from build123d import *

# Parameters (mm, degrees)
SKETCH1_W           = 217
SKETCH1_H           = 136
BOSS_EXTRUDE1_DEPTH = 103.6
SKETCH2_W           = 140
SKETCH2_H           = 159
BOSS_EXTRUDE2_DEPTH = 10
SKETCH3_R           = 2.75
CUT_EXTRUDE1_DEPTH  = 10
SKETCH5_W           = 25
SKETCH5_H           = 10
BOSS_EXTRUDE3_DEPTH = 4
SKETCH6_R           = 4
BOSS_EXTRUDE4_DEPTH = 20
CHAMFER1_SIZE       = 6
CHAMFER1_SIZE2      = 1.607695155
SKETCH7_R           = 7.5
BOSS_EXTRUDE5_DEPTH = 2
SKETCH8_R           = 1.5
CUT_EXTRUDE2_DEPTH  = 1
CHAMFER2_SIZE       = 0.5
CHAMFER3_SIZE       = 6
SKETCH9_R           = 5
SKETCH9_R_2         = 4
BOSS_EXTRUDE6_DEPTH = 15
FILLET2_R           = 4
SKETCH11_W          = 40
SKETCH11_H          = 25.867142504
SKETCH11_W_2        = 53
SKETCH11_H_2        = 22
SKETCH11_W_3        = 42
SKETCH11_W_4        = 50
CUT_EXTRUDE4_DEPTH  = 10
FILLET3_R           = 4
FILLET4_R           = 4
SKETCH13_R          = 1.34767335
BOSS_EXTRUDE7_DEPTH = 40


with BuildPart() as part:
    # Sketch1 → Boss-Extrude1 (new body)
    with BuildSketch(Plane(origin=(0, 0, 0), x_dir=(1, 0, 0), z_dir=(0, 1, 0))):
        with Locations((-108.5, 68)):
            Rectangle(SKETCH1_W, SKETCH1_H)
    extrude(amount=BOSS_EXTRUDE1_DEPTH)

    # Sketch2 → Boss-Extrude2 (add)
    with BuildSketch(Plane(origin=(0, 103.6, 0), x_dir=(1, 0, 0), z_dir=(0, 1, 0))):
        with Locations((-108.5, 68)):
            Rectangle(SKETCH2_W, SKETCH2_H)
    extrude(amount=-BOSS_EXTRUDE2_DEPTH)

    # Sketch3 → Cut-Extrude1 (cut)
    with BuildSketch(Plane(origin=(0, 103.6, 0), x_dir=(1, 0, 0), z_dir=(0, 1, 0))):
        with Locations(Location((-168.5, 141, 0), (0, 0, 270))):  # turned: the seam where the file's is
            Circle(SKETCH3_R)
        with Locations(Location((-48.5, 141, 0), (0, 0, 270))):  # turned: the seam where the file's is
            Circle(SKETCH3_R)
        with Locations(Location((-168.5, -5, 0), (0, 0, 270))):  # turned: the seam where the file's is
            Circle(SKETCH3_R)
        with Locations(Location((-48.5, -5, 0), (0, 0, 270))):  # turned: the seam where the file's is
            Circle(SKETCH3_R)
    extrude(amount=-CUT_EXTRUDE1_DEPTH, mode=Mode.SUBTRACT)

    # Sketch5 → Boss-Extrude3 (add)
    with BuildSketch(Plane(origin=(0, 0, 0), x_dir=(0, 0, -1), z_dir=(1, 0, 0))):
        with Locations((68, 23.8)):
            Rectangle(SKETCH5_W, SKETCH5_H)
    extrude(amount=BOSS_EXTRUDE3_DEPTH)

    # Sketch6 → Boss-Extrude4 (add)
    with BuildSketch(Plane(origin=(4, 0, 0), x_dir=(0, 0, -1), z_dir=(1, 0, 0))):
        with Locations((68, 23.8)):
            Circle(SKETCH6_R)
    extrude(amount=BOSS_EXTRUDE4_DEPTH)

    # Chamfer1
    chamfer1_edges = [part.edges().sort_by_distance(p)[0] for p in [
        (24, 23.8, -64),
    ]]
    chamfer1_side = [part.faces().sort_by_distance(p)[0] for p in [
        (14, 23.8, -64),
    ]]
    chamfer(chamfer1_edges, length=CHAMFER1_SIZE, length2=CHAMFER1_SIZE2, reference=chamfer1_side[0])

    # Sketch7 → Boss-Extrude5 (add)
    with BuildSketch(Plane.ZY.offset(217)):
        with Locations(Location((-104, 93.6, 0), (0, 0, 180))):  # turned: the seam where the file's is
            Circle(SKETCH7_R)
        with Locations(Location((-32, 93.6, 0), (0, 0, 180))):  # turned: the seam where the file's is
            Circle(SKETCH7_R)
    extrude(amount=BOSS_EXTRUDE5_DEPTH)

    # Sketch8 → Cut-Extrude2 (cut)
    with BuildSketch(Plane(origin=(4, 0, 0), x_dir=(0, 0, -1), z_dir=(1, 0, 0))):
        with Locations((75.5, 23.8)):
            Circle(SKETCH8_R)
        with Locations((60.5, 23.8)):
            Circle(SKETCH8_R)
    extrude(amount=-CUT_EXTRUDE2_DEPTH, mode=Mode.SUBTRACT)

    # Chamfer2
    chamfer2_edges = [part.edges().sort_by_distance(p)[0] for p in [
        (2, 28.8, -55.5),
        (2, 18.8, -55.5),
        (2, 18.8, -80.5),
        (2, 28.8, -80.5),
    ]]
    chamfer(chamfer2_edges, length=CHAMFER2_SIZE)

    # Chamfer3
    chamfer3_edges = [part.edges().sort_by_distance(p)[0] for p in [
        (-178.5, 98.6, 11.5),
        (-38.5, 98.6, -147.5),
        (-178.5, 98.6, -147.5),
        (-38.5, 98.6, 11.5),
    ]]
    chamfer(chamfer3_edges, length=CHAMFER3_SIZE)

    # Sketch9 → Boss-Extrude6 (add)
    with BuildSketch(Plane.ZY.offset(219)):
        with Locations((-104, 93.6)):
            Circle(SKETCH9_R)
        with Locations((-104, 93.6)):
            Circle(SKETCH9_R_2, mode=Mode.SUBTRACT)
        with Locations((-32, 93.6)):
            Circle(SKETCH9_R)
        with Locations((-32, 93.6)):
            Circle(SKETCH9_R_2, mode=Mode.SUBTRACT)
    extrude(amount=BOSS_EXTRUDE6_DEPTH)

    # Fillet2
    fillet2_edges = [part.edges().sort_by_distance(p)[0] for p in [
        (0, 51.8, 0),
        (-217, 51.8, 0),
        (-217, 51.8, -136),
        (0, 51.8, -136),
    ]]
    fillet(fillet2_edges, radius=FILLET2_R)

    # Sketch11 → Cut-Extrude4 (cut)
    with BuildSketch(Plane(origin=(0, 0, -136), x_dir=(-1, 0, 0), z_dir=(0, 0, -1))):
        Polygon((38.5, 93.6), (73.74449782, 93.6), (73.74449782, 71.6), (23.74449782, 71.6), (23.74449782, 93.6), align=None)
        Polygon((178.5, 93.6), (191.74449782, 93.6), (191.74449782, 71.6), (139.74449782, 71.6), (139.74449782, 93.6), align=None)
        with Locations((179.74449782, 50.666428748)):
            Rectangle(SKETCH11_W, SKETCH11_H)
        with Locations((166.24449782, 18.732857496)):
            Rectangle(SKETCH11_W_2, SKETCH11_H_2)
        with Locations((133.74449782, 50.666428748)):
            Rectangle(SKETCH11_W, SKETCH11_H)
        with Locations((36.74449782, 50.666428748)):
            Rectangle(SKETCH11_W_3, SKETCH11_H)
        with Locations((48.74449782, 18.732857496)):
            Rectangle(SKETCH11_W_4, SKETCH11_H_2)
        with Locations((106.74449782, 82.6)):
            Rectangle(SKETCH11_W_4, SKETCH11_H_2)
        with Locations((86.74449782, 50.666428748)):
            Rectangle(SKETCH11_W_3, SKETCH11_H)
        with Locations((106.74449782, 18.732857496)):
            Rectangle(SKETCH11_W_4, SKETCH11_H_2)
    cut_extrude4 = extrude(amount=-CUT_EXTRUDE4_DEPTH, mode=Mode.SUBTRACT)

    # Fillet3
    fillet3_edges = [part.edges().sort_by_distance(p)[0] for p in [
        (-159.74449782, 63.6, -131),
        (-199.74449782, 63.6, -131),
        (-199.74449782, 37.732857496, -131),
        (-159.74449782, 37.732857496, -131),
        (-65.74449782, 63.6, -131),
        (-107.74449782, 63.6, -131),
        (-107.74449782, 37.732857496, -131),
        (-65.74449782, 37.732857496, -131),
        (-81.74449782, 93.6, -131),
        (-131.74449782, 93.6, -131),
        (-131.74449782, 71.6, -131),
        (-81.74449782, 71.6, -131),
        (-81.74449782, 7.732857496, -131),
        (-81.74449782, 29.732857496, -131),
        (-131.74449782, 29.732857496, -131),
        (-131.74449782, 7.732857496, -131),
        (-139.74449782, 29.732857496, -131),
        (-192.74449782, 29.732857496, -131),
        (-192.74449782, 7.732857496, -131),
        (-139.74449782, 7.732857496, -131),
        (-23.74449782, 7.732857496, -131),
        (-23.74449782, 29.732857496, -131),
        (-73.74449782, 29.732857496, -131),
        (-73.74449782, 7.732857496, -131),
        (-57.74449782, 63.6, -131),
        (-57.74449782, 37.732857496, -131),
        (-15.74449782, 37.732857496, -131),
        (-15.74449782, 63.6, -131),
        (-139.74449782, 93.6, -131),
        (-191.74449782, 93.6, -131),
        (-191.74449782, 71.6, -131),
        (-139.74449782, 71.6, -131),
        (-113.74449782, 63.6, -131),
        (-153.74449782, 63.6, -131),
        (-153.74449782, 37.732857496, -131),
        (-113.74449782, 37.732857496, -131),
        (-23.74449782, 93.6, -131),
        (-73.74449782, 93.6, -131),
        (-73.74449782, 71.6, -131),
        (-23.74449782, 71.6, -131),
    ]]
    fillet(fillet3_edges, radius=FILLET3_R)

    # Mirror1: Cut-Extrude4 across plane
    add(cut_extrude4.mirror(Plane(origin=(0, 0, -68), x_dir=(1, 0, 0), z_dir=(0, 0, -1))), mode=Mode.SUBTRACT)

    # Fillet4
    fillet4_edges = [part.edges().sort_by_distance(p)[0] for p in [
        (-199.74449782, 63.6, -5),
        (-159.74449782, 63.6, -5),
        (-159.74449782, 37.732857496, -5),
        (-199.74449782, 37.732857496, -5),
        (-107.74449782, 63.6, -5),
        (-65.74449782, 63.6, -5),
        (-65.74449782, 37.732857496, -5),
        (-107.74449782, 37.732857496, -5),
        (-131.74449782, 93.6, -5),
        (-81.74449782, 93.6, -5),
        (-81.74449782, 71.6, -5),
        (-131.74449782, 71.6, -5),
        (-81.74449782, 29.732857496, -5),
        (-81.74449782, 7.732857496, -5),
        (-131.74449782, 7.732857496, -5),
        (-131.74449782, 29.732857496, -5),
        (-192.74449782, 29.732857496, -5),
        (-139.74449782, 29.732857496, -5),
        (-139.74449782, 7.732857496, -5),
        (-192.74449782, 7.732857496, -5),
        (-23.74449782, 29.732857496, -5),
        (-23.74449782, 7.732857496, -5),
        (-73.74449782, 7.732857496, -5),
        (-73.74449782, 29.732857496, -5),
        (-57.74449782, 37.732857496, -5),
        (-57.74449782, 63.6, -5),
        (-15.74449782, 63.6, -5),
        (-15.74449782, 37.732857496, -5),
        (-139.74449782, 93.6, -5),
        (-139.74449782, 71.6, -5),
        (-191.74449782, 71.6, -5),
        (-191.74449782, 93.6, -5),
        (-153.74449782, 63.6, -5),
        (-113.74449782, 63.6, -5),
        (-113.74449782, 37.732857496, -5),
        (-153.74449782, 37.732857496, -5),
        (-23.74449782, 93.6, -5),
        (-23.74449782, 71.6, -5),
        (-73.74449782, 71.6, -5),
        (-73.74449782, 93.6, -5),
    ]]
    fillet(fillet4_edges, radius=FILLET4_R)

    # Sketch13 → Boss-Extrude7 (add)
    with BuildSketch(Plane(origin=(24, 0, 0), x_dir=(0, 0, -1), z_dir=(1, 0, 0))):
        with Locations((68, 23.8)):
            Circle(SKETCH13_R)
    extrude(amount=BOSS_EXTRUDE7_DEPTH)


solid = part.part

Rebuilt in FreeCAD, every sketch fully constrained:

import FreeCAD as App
import Part
import Sketcher
from FreeCAD import Vector
Q = App.Units.Quantity


def edges_at(feature, points):
    """Names of the edges that pass closest to the given points."""
    edges = feature.Shape.Edges
    near = lambda p: min(range(len(edges)), key=lambda i: edges[i].distToShape(Part.Vertex(*p))[0])
    return sorted({f"Edge{near(p) + 1}" for p in points})


def add_polygon(sketch, points):
    """Adds a closed chain of lines whose ends are joined by coincident constraints."""
    first, n = sketch.GeometryCount, len(points)
    for a, b in zip(points, points[1:] + points[:1]):
        sketch.addGeometry(Part.LineSegment(App.Vector(*a, 0), App.Vector(*b, 0)), False)
    for i in range(n):
        sketch.addConstraint(Sketcher.Constraint("Coincident", first + i, 2, first + (i + 1) % n, 1))

doc = App.newDocument("Part")
params = doc.addObject("Spreadsheet::Sheet", "Params")
for row, (alias, value) in enumerate([
    ("sketch1_width", "217 mm"),
    ("sketch1_height", "136 mm"),
    ("pad1_length", "103.6 mm"),
    ("sketch2_width", "140 mm"),
    ("sketch2_height", "159 mm"),
    ("pad2_length", "10 mm"),
    ("sketch3_diameter", "5.5 mm"),
    ("pocket1_length", "10 mm"),
    ("sketch4_width", "10 mm"),
    ("sketch4_height", "25 mm"),
    ("pad3_length", "4 mm"),
    ("sketch5_diameter", "8 mm"),
    ("pad4_length", "20 mm"),
    ("chamfer_size", "6 mm"),
    ("chamfer_size2", "1.607695 mm"),
    ("sketch6_diameter", "15 mm"),
    ("pad5_length", "2 mm"),
    ("sketch7_diameter", "3 mm"),
    ("pocket2_length", "1 mm"),
    ("chamfer2_size", "0.5 mm"),
    ("chamfer3_size", "6 mm"),
    ("sketch8_diameter", "10 mm"),
    ("sketch8_diameter2", "8 mm"),
    ("pad6_length", "15 mm"),
    ("fillet_radius", "4 mm"),
    ("sketch9_width", "50 mm"),
    ("sketch9_width2", "52 mm"),
    ("sketch9_width3", "40 mm"),
    ("sketch9_width4", "53 mm"),
    ("sketch9_width5", "42 mm"),
    ("pocket3_length", "10 mm"),
    ("fillet2_radius", "4 mm"),
    ("fillet3_radius", "4 mm"),
    ("pad7_length", "40 mm"),
], start=1):
    params.set(f"A{row}", alias)
    params.set(f"B{row}", "=" + value)
    params.setAlias(f"B{row}", alias)

body = doc.addObject("PartDesign::Body", "Body")

# Sketch on XZ plane
sketch1 = body.newObject("Sketcher::SketchObject", "Sketch")
sketch1.AttachmentSupport = (doc.getObject("XZ_Plane"), [""])
sketch1.MapMode = "FlatFace"
add_polygon(sketch1, [(-217, -136), (-217, 0), (0, 0), (0, -136)])  # lines 0-3
sketch1.addConstraint([
    Sketcher.Constraint("Vertical", 0),
    Sketcher.Constraint("Horizontal", 1),
    Sketcher.Constraint("Vertical", 2),
    Sketcher.Constraint("Horizontal", 3),
    Sketcher.Constraint("Coincident", 1, 2, -1, 1),
    Sketcher.Constraint("DistanceX", 1, 1, 1, 2, Q("217 mm")),
    Sketcher.Constraint("DistanceY", 0, 1, 0, 2, Q("136 mm")),
])
sketch1.setExpression("Constraints[9]", "Params.sketch1_width")
sketch1.setExpression("Constraints[10]", "Params.sketch1_height")
pad1 = body.newObject("PartDesign::Pad", "Pad")
pad1.Profile = sketch1
pad1.setExpression("Length", "Params.pad1_length")
pad1.Reversed = True

# Sketch on XZ plane
sketch2 = body.newObject("Sketcher::SketchObject", "Sketch001")
sketch2.AttachmentSupport = (doc.getObject("XZ_Plane"), [""])
sketch2.MapMode = "FlatFace"
sketch2.AttachmentOffset = App.Placement(Vector(0, 0, -103.6), App.Rotation())
add_polygon(sketch2, [(-178, -148), (-178, 12), (-38, 12), (-38, -148)])  # lines 0-3
sketch2.addConstraint([
    Sketcher.Constraint("Vertical", 0),
    Sketcher.Constraint("Horizontal", 1),
    Sketcher.Constraint("Vertical", 2),
    Sketcher.Constraint("Horizontal", 3),
    Sketcher.Constraint("DistanceX", 1, 1, 1, 2, Q("140 mm")),
    Sketcher.Constraint("DistanceY", 0, 1, 0, 2, Q("159 mm")),
    Sketcher.Constraint("DistanceX", 0, 2, -1, 1, Q("178.5 mm")),
    Sketcher.Constraint("DistanceY", -1, 1, 0, 2, Q("11.5 mm")),
])
sketch2.setExpression("Constraints[8]", "Params.sketch2_width")
sketch2.setExpression("Constraints[9]", "Params.sketch2_height")
pad2 = body.newObject("PartDesign::Pad", "Pad001")
pad2.Profile = sketch2
pad2.setExpression("Length", "Params.pad2_length")

# Sketch on XZ plane
sketch3 = body.newObject("Sketcher::SketchObject", "Sketch002")
sketch3.AttachmentSupport = (doc.getObject("XZ_Plane"), [""])
sketch3.MapMode = "FlatFace"
sketch3.AttachmentOffset = App.Placement(Vector(0, 0, -103.6), App.Rotation())
sketch3.addGeometry([
    Part.Circle(Vector(-168.5, -141, 0), Vector(0, 0, 1), 2.8),
    Part.Circle(Vector(-48.5, -141, 0), Vector(0, 0, 1), 2.8),
    Part.Circle(Vector(-168.5, 5, 0), Vector(0, 0, 1), 2.8),
    Part.Circle(Vector(-48.5, 5, 0), Vector(0, 0, 1), 2.8),
], False)
sketch3.addConstraint([
    Sketcher.Constraint("Equal", 0, 1),
    Sketcher.Constraint("Equal", 1, 2),
    Sketcher.Constraint("Equal", 2, 3),
    Sketcher.Constraint("Horizontal", 0, 3, 1, 3),
    Sketcher.Constraint("Horizontal", 2, 3, 3, 3),
    Sketcher.Constraint("Vertical", 0, 3, 2, 3),
    Sketcher.Constraint("Vertical", 1, 3, 3, 3),
    Sketcher.Constraint("Diameter", 0, Q("5.5 mm")),
    Sketcher.Constraint("DistanceY", 0, 3, -1, 1, Q("141 mm")),
    Sketcher.Constraint("DistanceY", -1, 1, 2, 3, Q("5 mm")),
    Sketcher.Constraint("DistanceX", 0, 3, 1, 3, Q("120 mm")),
    Sketcher.Constraint("DistanceX", 0, 3, -1, 1, Q("168.5 mm")),
])
sketch3.setExpression("Constraints[7]", "Params.sketch3_diameter")
pocket1 = body.newObject("PartDesign::Pocket", "Pocket")
pocket1.Profile = sketch3
pocket1.setExpression("Length", "Params.pocket1_length")
pocket1.Reversed = True

# Sketch on YZ plane
sketch4 = body.newObject("Sketcher::SketchObject", "Sketch003")
sketch4.AttachmentSupport = (doc.getObject("YZ_Plane"), [""])
sketch4.MapMode = "FlatFace"
add_polygon(sketch4, [(29, -56), (19, -56), (19, -80), (29, -80)])  # lines 0-3
sketch4.addConstraint([
    Sketcher.Constraint("Horizontal", 0),
    Sketcher.Constraint("Vertical", 1),
    Sketcher.Constraint("Horizontal", 2),
    Sketcher.Constraint("Vertical", 3),
    Sketcher.Constraint("DistanceX", 0, 2, 0, 1, Q("10 mm")),
    Sketcher.Constraint("DistanceY", 1, 2, 1, 1, Q("25 mm")),
    Sketcher.Constraint("DistanceX", -1, 1, 0, 2, Q("18.8 mm")),
    Sketcher.Constraint("DistanceY", 0, 2, -1, 1, Q("55.5 mm")),
])
sketch4.setExpression("Constraints[8]", "Params.sketch4_width")
sketch4.setExpression("Constraints[9]", "Params.sketch4_height")
pad3 = body.newObject("PartDesign::Pad", "Pad002")
pad3.Profile = sketch4
pad3.setExpression("Length", "Params.pad3_length")

# Sketch on YZ plane
sketch5 = body.newObject("Sketcher::SketchObject", "Sketch004")
sketch5.AttachmentSupport = (doc.getObject("YZ_Plane"), [""])
sketch5.MapMode = "FlatFace"
sketch5.AttachmentOffset = App.Placement(Vector(0, 0, 4), App.Rotation())
sketch5.addGeometry(Part.Circle(Vector(23.8, -68, 0), Vector(0, 0, 1), 4), False)
sketch5.addConstraint([
    Sketcher.Constraint("Diameter", 0, Q("8 mm")),
    Sketcher.Constraint("DistanceY", 0, 3, -1, 1, Q("68 mm")),
    Sketcher.Constraint("DistanceX", -1, 1, 0, 3, Q("23.8 mm")),
])
sketch5.setExpression("Constraints[0]", "Params.sketch5_diameter")
pad4 = body.newObject("PartDesign::Pad", "Pad003")
pad4.Profile = sketch5
pad4.setExpression("Length", "Params.pad4_length")
doc.recompute()

chamfer = body.newObject("PartDesign::Chamfer", "Chamfer")
chamfer.Base = (pad4, edges_at(pad4, [(24, 23.8, -64)]))
chamfer.ChamferType = "Two distances"
chamfer.setExpression("Size", "Params.chamfer_size")
chamfer.setExpression("Size2", "Params.chamfer_size2")

# Sketch on YZ plane
sketch6 = body.newObject("Sketcher::SketchObject", "Sketch005")
sketch6.AttachmentSupport = (doc.getObject("YZ_Plane"), [""])
sketch6.MapMode = "FlatFace"
sketch6.AttachmentOffset = App.Placement(Vector(0, 0, -217), App.Rotation())
sketch6.addGeometry([
    Part.Circle(Vector(94, -104, 0), Vector(0, 0, 1), 8),
    Part.Circle(Vector(94, -32, 0), Vector(0, 0, 1), 8),
], False)
sketch6.addConstraint([
    Sketcher.Constraint("Equal", 0, 1),
    Sketcher.Constraint("Vertical", 0, 3, 1, 3),
    Sketcher.Constraint("Diameter", 0, Q("15 mm")),
    Sketcher.Constraint("DistanceY", 0, 3, -1, 1, Q("104 mm")),
    Sketcher.Constraint("DistanceY", 1, 3, -1, 1, Q("32 mm")),
    Sketcher.Constraint("DistanceX", -1, 1, 0, 3, Q("93.6 mm")),
])
sketch6.setExpression("Constraints[2]", "Params.sketch6_diameter")
pad5 = body.newObject("PartDesign::Pad", "Pad004")
pad5.Profile = sketch6
pad5.setExpression("Length", "Params.pad5_length")
pad5.Reversed = True

# Sketch on YZ plane
sketch7 = body.newObject("Sketcher::SketchObject", "Sketch006")
sketch7.AttachmentSupport = (doc.getObject("YZ_Plane"), [""])
sketch7.MapMode = "FlatFace"
sketch7.AttachmentOffset = App.Placement(Vector(0, 0, 4), App.Rotation())
sketch7.addGeometry([
    Part.Circle(Vector(23.8, -75.5, 0), Vector(0, 0, 1), 1.5),
    Part.Circle(Vector(23.8, -60.5, 0), Vector(0, 0, 1), 1.5),
], False)
sketch7.addConstraint([
    Sketcher.Constraint("Equal", 0, 1),
    Sketcher.Constraint("Vertical", 0, 3, 1, 3),
    Sketcher.Constraint("Diameter", 0, Q("3 mm")),
    Sketcher.Constraint("DistanceY", 0, 3, 1, 3, Q("15 mm")),
    Sketcher.Constraint("DistanceX", -1, 1, 0, 3, Q("23.8 mm")),
    Sketcher.Constraint("DistanceY", 0, 3, -1, 1, Q("75.5 mm")),
])
sketch7.setExpression("Constraints[2]", "Params.sketch7_diameter")
pocket2 = body.newObject("PartDesign::Pocket", "Pocket001")
pocket2.Profile = sketch7
pocket2.setExpression("Length", "Params.pocket2_length")
doc.recompute()

chamfer2 = body.newObject("PartDesign::Chamfer", "Chamfer001")
chamfer2.Base = (pocket2, edges_at(pocket2, [
    (2, 28.8, -55.5),
    (2, 18.8, -55.5),
    (2, 18.8, -80.5),
    (2, 28.8, -80.5),
]))
chamfer2.setExpression("Size", "Params.chamfer2_size")
doc.recompute()

chamfer3 = body.newObject("PartDesign::Chamfer", "Chamfer002")
chamfer3.Base = (chamfer2, edges_at(chamfer2, [
    (-178.5, 98.6, 11.5),
    (-38.5, 98.6, -147.5),
    (-178.5, 98.6, -147.5),
    (-38.5, 98.6, 11.5),
]))
chamfer3.setExpression("Size", "Params.chamfer3_size")

# Sketch on YZ plane
sketch8 = body.newObject("Sketcher::SketchObject", "Sketch007")
sketch8.AttachmentSupport = (doc.getObject("YZ_Plane"), [""])
sketch8.MapMode = "FlatFace"
sketch8.AttachmentOffset = App.Placement(Vector(0, 0, -219), App.Rotation())
sketch8.addGeometry([
    Part.Circle(Vector(93.6, -104, 0), Vector(0, 0, 1), 5),
    Part.Circle(Vector(93.6, -104, 0), Vector(0, 0, 1), 4),
    Part.Circle(Vector(93.6, -32, 0), Vector(0, 0, 1), 5),
    Part.Circle(Vector(93.6, -32, 0), Vector(0, 0, 1), 4),
], False)
sketch8.addConstraint([
    Sketcher.Constraint("Coincident", 1, 3, 0, 3),
    Sketcher.Constraint("Coincident", 3, 3, 2, 3),
    Sketcher.Constraint("Equal", 0, 2),
    Sketcher.Constraint("Equal", 1, 3),
    Sketcher.Constraint("Vertical", 1, 3, 2, 3),
    Sketcher.Constraint("Diameter", 0, Q("10 mm")),
    Sketcher.Constraint("Diameter", 1, Q("8 mm")),
    Sketcher.Constraint("DistanceY", 0, 3, -1, 1, Q("104 mm")),
    Sketcher.Constraint("DistanceY", 2, 3, -1, 1, Q("32 mm")),
    Sketcher.Constraint("DistanceX", -1, 1, 0, 3, Q("93.6 mm")),
])
sketch8.setExpression("Constraints[5]", "Params.sketch8_diameter")
sketch8.setExpression("Constraints[6]", "Params.sketch8_diameter2")
pad6 = body.newObject("PartDesign::Pad", "Pad005")
pad6.Profile = sketch8
pad6.setExpression("Length", "Params.pad6_length")
pad6.Reversed = True
doc.recompute()

fillet = body.newObject("PartDesign::Fillet", "Fillet")
fillet.Base = (pad6, edges_at(pad6, [
    (0, 51.8, 0),
    (-217, 51.8, 0),
    (-217, 51.8, -136),
    (0, 51.8, -136),
]))
fillet.setExpression("Radius", "Params.fillet_radius")

# Sketch on XY plane
sketch9 = body.newObject("Sketcher::SketchObject", "Sketch008")
sketch9.AttachmentSupport = (doc.getObject("XY_Plane"), [""])
sketch9.MapMode = "FlatFace"
sketch9.AttachmentOffset = App.Placement(Vector(0, 0, -136), App.Rotation())
add_polygon(sketch9, [(-74, 94), (-24, 94), (-24, 72), (-74, 72)])  # lines 0-3
add_polygon(sketch9, [(-192, 94), (-140, 94), (-140, 72), (-192, 72)])  # lines 4-7
add_polygon(sketch9, [(-160, 64), (-160, 38), (-200, 38), (-200, 64)])  # lines 8-11
add_polygon(sketch9, [(-140, 30), (-140, 8), (-193, 8), (-193, 30)])  # lines 12-15
add_polygon(sketch9, [(-114, 64), (-114, 38), (-154, 38), (-154, 64)])  # lines 16-19
add_polygon(sketch9, [(-16, 64), (-16, 38), (-58, 38), (-58, 64)])  # lines 20-23
add_polygon(sketch9, [(-24, 30), (-24, 8), (-74, 8), (-74, 30)])  # lines 24-27
add_polygon(sketch9, [(-82, 94), (-82, 72), (-132, 72), (-132, 94)])  # lines 28-31
add_polygon(sketch9, [(-66, 64), (-66, 38), (-108, 38), (-108, 64)])  # lines 32-35
add_polygon(sketch9, [(-82, 30), (-82, 8), (-132, 8), (-132, 30)])  # lines 36-39
sketch9.addConstraint([
    Sketcher.Constraint("Horizontal", 0),
    Sketcher.Constraint("Vertical", 1),
    Sketcher.Constraint("Horizontal", 2),
    Sketcher.Constraint("Vertical", 3),
    Sketcher.Constraint("Horizontal", 4),
    Sketcher.Constraint("Vertical", 5),
    Sketcher.Constraint("Horizontal", 6),
    Sketcher.Constraint("Vertical", 7),
    Sketcher.Constraint("Vertical", 8),
    Sketcher.Constraint("Horizontal", 9),
    Sketcher.Constraint("Vertical", 10),
    Sketcher.Constraint("Horizontal", 11),
    Sketcher.Constraint("Vertical", 12),
    Sketcher.Constraint("Horizontal", 13),
    Sketcher.Constraint("Vertical", 14),
    Sketcher.Constraint("Horizontal", 15),
    Sketcher.Constraint("Vertical", 16),
    Sketcher.Constraint("Horizontal", 17),
    Sketcher.Constraint("Vertical", 18),
    Sketcher.Constraint("Horizontal", 19),
    Sketcher.Constraint("Vertical", 20),
    Sketcher.Constraint("Horizontal", 21),
    Sketcher.Constraint("Vertical", 22),
    Sketcher.Constraint("Horizontal", 23),
    Sketcher.Constraint("Vertical", 24),
    Sketcher.Constraint("Horizontal", 25),
    Sketcher.Constraint("Vertical", 26),
    Sketcher.Constraint("Horizontal", 27),
    Sketcher.Constraint("Vertical", 28),
    Sketcher.Constraint("Horizontal", 29),
    Sketcher.Constraint("Vertical", 30),
    Sketcher.Constraint("Horizontal", 31),
    Sketcher.Constraint("Vertical", 32),
    Sketcher.Constraint("Horizontal", 33),
    Sketcher.Constraint("Vertical", 34),
    Sketcher.Constraint("Horizontal", 35),
    Sketcher.Constraint("Vertical", 36),
    Sketcher.Constraint("Horizontal", 37),
    Sketcher.Constraint("Vertical", 38),
    Sketcher.Constraint("Horizontal", 39),
    Sketcher.Constraint("Horizontal", 3, 2, 4, 2),
    Sketcher.Constraint("Horizontal", 2, 2, 5, 2),
    Sketcher.Constraint("Horizontal", 9, 2, 16, 2),
    Sketcher.Constraint("Horizontal", 11, 2, 18, 2),
    Sketcher.Constraint("Horizontal", 17, 2, 20, 2),
    Sketcher.Constraint("Horizontal", 19, 2, 22, 2),
    Sketcher.Constraint("Horizontal", 13, 2, 24, 2),
    Sketcher.Constraint("Horizontal", 15, 2, 26, 2),
    Sketcher.Constraint("Horizontal", 6, 2, 28, 2),
    Sketcher.Constraint("Horizontal", 7, 2, 30, 2),
    Sketcher.Constraint("Horizontal", 21, 2, 32, 2),
    Sketcher.Constraint("Horizontal", 23, 2, 34, 2),
    Sketcher.Constraint("Horizontal", 25, 2, 36, 2),
    Sketcher.Constraint("Horizontal", 27, 2, 38, 2),
    Sketcher.Constraint("Vertical", 5, 2, 12, 2),
    Sketcher.Constraint("Vertical", 1, 2, 24, 2),
    Sketcher.Constraint("Vertical", 3, 2, 25, 2),
    Sketcher.Constraint("Vertical", 31, 2, 36, 2),
    Sketcher.Constraint("Vertical", 30, 2, 37, 2),
    Sketcher.Constraint("Equal", 11, 17),
    Sketcher.Constraint("Equal", 27, 29),
    Sketcher.Constraint("Equal", 23, 33),
    Sketcher.Constraint("Equal", 7, 12),
    Sketcher.Constraint("DistanceX", 0, 1, 0, 2, Q("50 mm")),
    Sketcher.Constraint("DistanceX", 4, 1, 4, 2, Q("52 mm")),
    Sketcher.Constraint("DistanceX", 9, 2, 9, 1, Q("40 mm")),
    Sketcher.Constraint("DistanceX", 13, 2, 13, 1, Q("53 mm")),
    Sketcher.Constraint("DistanceX", 21, 2, 21, 1, Q("42 mm")),
    Sketcher.Constraint("DistanceY", 1, 2, 1, 1, Q("22 mm")),
    Sketcher.Constraint("DistanceX", 4, 2, 3, 2, Q("66 mm")),
    Sketcher.Constraint("DistanceX", 8, 2, 5, 2, Q("20 mm")),
    Sketcher.Constraint("DistanceY", 10, 2, 6, 2, Q("8 mm")),
    Sketcher.Constraint("DistanceY", 12, 2, 8, 2, Q("30 mm")),
    Sketcher.Constraint("DistanceX", 15, 2, 16, 2, Q("26 mm")),
    Sketcher.Constraint("DistanceX", 1, 2, 20, 2, Q("8 mm")),
    Sketcher.Constraint("DistanceX", 28, 2, 2, 2, Q("8 mm")),
    Sketcher.Constraint("DistanceX", 32, 2, 21, 2, Q("8 mm")),
    Sketcher.Constraint("DistanceY", -1, 1, 0, 2, Q("93.6 mm")),
    Sketcher.Constraint("DistanceY", 8, 2, 8, 1, Q("25.867143 mm")),
    Sketcher.Constraint("DistanceX", 0, 2, -1, 1, Q("23.744498 mm")),
])
sketch9.setExpression("Constraints[103]", "Params.sketch9_width")
sketch9.setExpression("Constraints[104]", "Params.sketch9_width2")
sketch9.setExpression("Constraints[105]", "Params.sketch9_width3")
sketch9.setExpression("Constraints[106]", "Params.sketch9_width4")
sketch9.setExpression("Constraints[107]", "Params.sketch9_width5")
pocket3 = body.newObject("PartDesign::Pocket", "Pocket002")
pocket3.Profile = sketch9
pocket3.setExpression("Length", "Params.pocket3_length")
pocket3.Reversed = True
doc.recompute()

fillet2 = body.newObject("PartDesign::Fillet", "Fillet001")
fillet2.Base = (pocket3, edges_at(pocket3, [
    (-159.744, 63.6, -131),
    (-199.744, 63.6, -131),
    (-199.744, 37.733, -131),
    (-159.744, 37.733, -131),
    (-65.744, 63.6, -131),
    (-107.744, 63.6, -131),
    (-107.744, 37.733, -131),
    (-65.744, 37.733, -131),
    (-81.744, 93.6, -131),
    (-131.744, 93.6, -131),
    (-131.744, 71.6, -131),
    (-81.744, 71.6, -131),
    (-81.744, 7.733, -131),
    (-81.744, 29.733, -131),
    (-131.744, 29.733, -131),
    (-131.744, 7.733, -131),
    (-139.744, 29.733, -131),
    (-192.744, 29.733, -131),
    (-192.744, 7.733, -131),
    (-139.744, 7.733, -131),
    (-23.744, 7.733, -131),
    (-23.744, 29.733, -131),
    (-73.744, 29.733, -131),
    (-73.744, 7.733, -131),
    (-57.744, 63.6, -131),
    (-57.744, 37.733, -131),
    (-15.744, 37.733, -131),
    (-15.744, 63.6, -131),
    (-139.744, 93.6, -131),
    (-191.744, 93.6, -131),
    (-191.744, 71.6, -131),
    (-139.744, 71.6, -131),
    (-113.744, 63.6, -131),
    (-153.744, 63.6, -131),
    (-153.744, 37.733, -131),
    (-113.744, 37.733, -131),
    (-23.744, 93.6, -131),
    (-73.744, 93.6, -131),
    (-73.744, 71.6, -131),
    (-23.744, 71.6, -131),
]))
fillet2.setExpression("Radius", "Params.fillet2_radius")
doc.recompute()

datumplane = body.newObject("PartDesign::Plane", "DatumPlane")
datumplane.AttachmentSupport = (doc.getObject("XY_Plane"), [""])
datumplane.MapMode = "FlatFace"
datumplane.AttachmentOffset = App.Placement(Vector(0, 0, -68), App.Rotation())
mirrored = body.newObject("PartDesign::Mirrored", "Mirrored")
mirrored.Originals = [pocket3]
mirrored.MirrorPlane = (datumplane, [""])
body.Tip = mirrored
doc.recompute()

fillet3 = body.newObject("PartDesign::Fillet", "Fillet002")
fillet3.Base = (mirrored, edges_at(mirrored, [
    (-199.744, 63.6, -5),
    (-159.744, 63.6, -5),
    (-159.744, 37.733, -5),
    (-199.744, 37.733, -5),
    (-107.744, 63.6, -5),
    (-65.744, 63.6, -5),
    (-65.744, 37.733, -5),
    (-107.744, 37.733, -5),
    (-131.744, 93.6, -5),
    (-81.744, 93.6, -5),
    (-81.744, 71.6, -5),
    (-131.744, 71.6, -5),
    (-81.744, 29.733, -5),
    (-81.744, 7.733, -5),
    (-131.744, 7.733, -5),
    (-131.744, 29.733, -5),
    (-192.744, 29.733, -5),
    (-139.744, 29.733, -5),
    (-139.744, 7.733, -5),
    (-192.744, 7.733, -5),
    (-23.744, 29.733, -5),
    (-23.744, 7.733, -5),
    (-73.744, 7.733, -5),
    (-73.744, 29.733, -5),
    (-57.744, 37.733, -5),
    (-57.744, 63.6, -5),
    (-15.744, 63.6, -5),
    (-15.744, 37.733, -5),
    (-139.744, 93.6, -5),
    (-139.744, 71.6, -5),
    (-191.744, 71.6, -5),
    (-191.744, 93.6, -5),
    (-153.744, 63.6, -5),
    (-113.744, 63.6, -5),
    (-113.744, 37.733, -5),
    (-153.744, 37.733, -5),
    (-23.744, 93.6, -5),
    (-23.744, 71.6, -5),
    (-73.744, 71.6, -5),
    (-73.744, 93.6, -5),
]))
fillet3.setExpression("Radius", "Params.fillet3_radius")

# Sketch on YZ plane
sketch10 = body.newObject("Sketcher::SketchObject", "Sketch009")
sketch10.AttachmentSupport = (doc.getObject("YZ_Plane"), [""])
sketch10.MapMode = "FlatFace"
sketch10.AttachmentOffset = App.Placement(Vector(0, 0, 24), App.Rotation())
sketch10.addGeometry(Part.Circle(Vector(23.8, -68, 0), Vector(0, 0, 1), 1.3), False)
sketch10.addConstraint([
    Sketcher.Constraint("DistanceY", 0, 3, -1, 1, Q("68 mm")),
    Sketcher.Constraint("DistanceX", -1, 1, 0, 3, Q("23.8 mm")),
    Sketcher.Constraint("Diameter", 0, Q("2.695347 mm")),
])
pad7 = body.newObject("PartDesign::Pad", "Pad006")
pad7.Profile = sketch10
pad7.setExpression("Length", "Params.pad7_length")

doc.recompute()
